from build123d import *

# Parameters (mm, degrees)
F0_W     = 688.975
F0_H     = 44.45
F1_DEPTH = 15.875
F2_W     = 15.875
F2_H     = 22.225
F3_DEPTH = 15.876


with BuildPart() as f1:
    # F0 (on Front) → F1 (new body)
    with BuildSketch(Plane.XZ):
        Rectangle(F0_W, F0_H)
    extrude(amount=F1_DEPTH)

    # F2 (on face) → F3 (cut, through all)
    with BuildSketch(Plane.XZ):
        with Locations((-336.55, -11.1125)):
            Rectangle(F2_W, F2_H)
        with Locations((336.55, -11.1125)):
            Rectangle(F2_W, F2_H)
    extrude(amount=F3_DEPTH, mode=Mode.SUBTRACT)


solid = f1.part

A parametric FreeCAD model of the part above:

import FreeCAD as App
import Part
import Sketcher
from FreeCAD import Vector
Q = App.Units.Quantity


def add_polygon(sketch, points):
    """Adds a closed chain of lines whose ends are joined by coincident constraints."""
    first, n = sketch.GeometryCount, len(points)
    for a, b in zip(points, points[1:] + points[:1]):
        sketch.addGeometry(Part.LineSegment(App.Vector(*a, 0), App.Vector(*b, 0)), False)
    for i in range(n):
        sketch.addConstraint(Sketcher.Constraint("Coincident", first + i, 2, first + (i + 1) % n, 1))

doc = App.newDocument("Part")
body = doc.addObject("PartDesign::Body", "Body")

# Sketch on XZ plane
sketch1 = doc.addObject("Sketcher::SketchObject", "Sketch")
body.addObject(sketch1)
sketch1.AttachmentSupport = (doc.XZ_Plane, [""])
sketch1.MapMode = "FlatFace"
add_polygon(sketch1, [(-344, 22), (-344, -22), (344, -22), (344, 22)])  # lines 0-3
sketch1.addConstraint(Sketcher.Constraint("Vertical", 0))
sketch1.addConstraint(Sketcher.Constraint("Horizontal", 1))
sketch1.addConstraint(Sketcher.Constraint("Vertical", 2))
sketch1.addConstraint(Sketcher.Constraint("Horizontal", 3))
sketch1.addConstraint(Sketcher.Constraint("Symmetric", 0, 2, 2, 2, -1, 1))
sketch1.addConstraint(Sketcher.Constraint("DistanceY", 0, 2, 0, 1, Q("1.75 in")))
sketch1.addConstraint(Sketcher.Constraint("DistanceX", 1, 1, 1, 2, Q("27.125 in")))
pad1 = doc.addObject("PartDesign::Pad", "Pad")
body.addObject(pad1)
pad1.Profile = sketch1
pad1.Length = Q("0.625 in")

# Sketch on XZ plane
sketch2 = doc.addObject("Sketcher::SketchObject", "Sketch001")
body.addObject(sketch2)
sketch2.AttachmentSupport = (doc.XZ_Plane, [""])
sketch2.MapMode = "FlatFace"
add_polygon(sketch2, [(-344, 0), (-344, -22), (-329, -22), (-329, 0)])  # lines 0-3
add_polygon(sketch2, [(329, 0), (329, -22), (344, -22), (344, 0)])  # lines 4-7
sketch2.addConstraint(Sketcher.Constraint("Vertical", 0))
sketch2.addConstraint(Sketcher.Constraint("Horizontal", 1))
sketch2.addConstraint(Sketcher.Constraint("Vertical", 2))
sketch2.addConstraint(Sketcher.Constraint("Horizontal", 3))
sketch2.addConstraint(Sketcher.Constraint("Vertical", 4))
sketch2.addConstraint(Sketcher.Constraint("Horizontal", 5))
sketch2.addConstraint(Sketcher.Constraint("Vertical", 6))
sketch2.addConstraint(Sketcher.Constraint("Horizontal", 7))
sketch2.addConstraint(Sketcher.Constraint("Symmetric", 3, 2, 6, 2, -1, 1))
sketch2.addConstraint(Sketcher.Constraint("Symmetric", 1, 2, 4, 2, -2))
sketch2.addConstraint(Sketcher.Constraint("PointOnObject", 2, 2, -1))
sketch2.addConstraint(Sketcher.Constraint("DistanceX", 0, 2, 4, 2, Q("26.5 in")))
sketch2.addConstraint(Sketcher.Constraint("DistanceX", 1, 1, 1, 2, Q("0.625 in")))
sketch2.addConstraint(Sketcher.Constraint("DistanceY", 0, 2, 0, 1, Q("0.875 in")))
pocket1 = doc.addObject("PartDesign::Pocket", "Pocket")
body.addObject(pocket1)
pocket1.Profile = sketch2
pocket1.Type = "ThroughAll"
pocket1.Reversed = True

doc.recompute()
